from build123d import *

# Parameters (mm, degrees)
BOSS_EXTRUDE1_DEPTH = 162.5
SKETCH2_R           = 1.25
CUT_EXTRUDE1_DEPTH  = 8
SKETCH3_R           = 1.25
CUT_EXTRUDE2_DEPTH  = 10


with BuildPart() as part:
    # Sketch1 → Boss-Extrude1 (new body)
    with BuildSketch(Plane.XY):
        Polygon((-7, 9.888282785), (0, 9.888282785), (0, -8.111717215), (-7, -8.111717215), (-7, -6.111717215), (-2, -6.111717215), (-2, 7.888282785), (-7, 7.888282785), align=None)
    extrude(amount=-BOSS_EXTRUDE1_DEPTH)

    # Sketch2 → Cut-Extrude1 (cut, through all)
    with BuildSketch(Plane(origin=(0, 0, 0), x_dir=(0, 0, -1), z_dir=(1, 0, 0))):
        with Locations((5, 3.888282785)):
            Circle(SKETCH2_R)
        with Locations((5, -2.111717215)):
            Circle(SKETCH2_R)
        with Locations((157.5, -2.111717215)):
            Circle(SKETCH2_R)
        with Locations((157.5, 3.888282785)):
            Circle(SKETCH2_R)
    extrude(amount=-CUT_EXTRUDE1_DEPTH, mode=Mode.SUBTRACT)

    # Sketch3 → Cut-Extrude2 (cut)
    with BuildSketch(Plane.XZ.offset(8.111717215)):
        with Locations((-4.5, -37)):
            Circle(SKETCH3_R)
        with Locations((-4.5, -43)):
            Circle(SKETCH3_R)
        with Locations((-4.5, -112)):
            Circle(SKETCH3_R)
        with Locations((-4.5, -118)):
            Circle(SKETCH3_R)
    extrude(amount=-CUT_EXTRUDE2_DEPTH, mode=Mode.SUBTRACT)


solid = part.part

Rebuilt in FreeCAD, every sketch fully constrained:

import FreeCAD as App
import Part
import Sketcher


def add_polygon(sketch, points):
    """Adds a closed chain of lines whose ends are joined by coincident constraints."""
    first, n = sketch.GeometryCount, len(points)
    for a, b in zip(points, points[1:] + points[:1]):
        sketch.addGeometry(Part.LineSegment(App.Vector(*a, 0), App.Vector(*b, 0)), False)
    for i in range(n):
        sketch.addConstraint(Sketcher.Constraint("Coincident", first + i, 2, first + (i + 1) % n, 1))

doc = App.newDocument("Part")
body = doc.addObject("PartDesign::Body", "Body")

# Sketch on XY plane
sketch1 = doc.addObject("Sketcher::SketchObject", "Sketch")
body.addObject(sketch1)
sketch1.AttachmentSupport = (doc.XY_Plane, [""])
sketch1.MapMode = "FlatFace"
add_polygon(sketch1, [(0, 9.888283), (-7, 9.888283), (-7, 7.888283), (-2, 7.888283), (-2, -6.111717), (-7, -6.111717), (-7, -8.111717), (0, -8.111717)])  # lines 0-7
sketch1.addConstraint(Sketcher.Constraint("Horizontal", 0))
sketch1.addConstraint(Sketcher.Constraint("Vertical", 1))
sketch1.addConstraint(Sketcher.Constraint("Horizontal", 2))
sketch1.addConstraint(Sketcher.Constraint("Vertical", 3))
sketch1.addConstraint(Sketcher.Constraint("Horizontal", 4))
sketch1.addConstraint(Sketcher.Constraint("Vertical", 5))
sketch1.addConstraint(Sketcher.Constraint("Horizontal", 6))
sketch1.addConstraint(Sketcher.Constraint("Vertical", 7))
sketch1.addConstraint(Sketcher.Constraint("PointOnObject", 6, 2, -2))
sketch1.addConstraint(Sketcher.Constraint("Vertical", 1, 2, 4, 2))
sketch1.addConstraint(Sketcher.Constraint("Equal", 1, 5))
sketch1.addConstraint(Sketcher.Constraint("DistanceX", 0, 2, 0, 1, 7.0))
sketch1.addConstraint(Sketcher.Constraint("DistanceX", 2, 1, 2, 2, 5.0))
sketch1.addConstraint(Sketcher.Constraint("DistanceY", 1, 2, 1, 1, 2.0))
sketch1.addConstraint(Sketcher.Constraint("DistanceY", 3, 2, 3, 1, 14.0))
sketch1.addConstraint(Sketcher.Constraint("DistanceY", -1, 1, 0, 2, 9.888283))
pad1 = doc.addObject("PartDesign::Pad", "Pad")
body.addObject(pad1)
pad1.Profile = sketch1
pad1.Length = 162.5
pad1.Reversed = True

# Sketch on YZ plane
sketch2 = doc.addObject("Sketcher::SketchObject", "Sketch001")
body.addObject(sketch2)
sketch2.AttachmentSupport = (doc.YZ_Plane, [""])
sketch2.MapMode = "FlatFace"
sketch2.addGeometry(Part.Circle(App.Vector(3.888283, -5, 0), App.Vector(0, 0, 1), 1.25), False)
sketch2.addGeometry(Part.Circle(App.Vector(-2.111717, -5, 0), App.Vector(0, 0, 1), 1.25), False)
sketch2.addGeometry(Part.Circle(App.Vector(-2.111717, -157.5, 0), App.Vector(0, 0, 1), 1.25), False)
sketch2.addGeometry(Part.Circle(App.Vector(3.888283, -157.5, 0), App.Vector(0, 0, 1), 1.25), False)
sketch2.addConstraint(Sketcher.Constraint("Equal", 0, 1))
sketch2.addConstraint(Sketcher.Constraint("Equal", 1, 2))
sketch2.addConstraint(Sketcher.Constraint("Equal", 2, 3))
sketch2.addConstraint(Sketcher.Constraint("Horizontal", 0, 3, 1, 3))
sketch2.addConstraint(Sketcher.Constraint("Horizontal", 2, 3, 3, 3))
sketch2.addConstraint(Sketcher.Constraint("Vertical", 1, 3, 2, 3))
sketch2.addConstraint(Sketcher.Constraint("Vertical", 0, 3, 3, 3))
sketch2.addConstraint(Sketcher.Constraint("Diameter", 0, 2.5))
sketch2.addConstraint(Sketcher.Constraint("DistanceY", 0, 3, -1, 1, 5.0))
sketch2.addConstraint(Sketcher.Constraint("DistanceX", 1, 3, 0, 3, 6.0))
sketch2.addConstraint(Sketcher.Constraint("DistanceY", 2, 3, -1, 1, 157.5))
sketch2.addConstraint(Sketcher.Constraint("DistanceX", -1, 1, 0, 3, 3.888283))
pocket1 = doc.addObject("PartDesign::Pocket", "Pocket")
body.addObject(pocket1)
pocket1.Profile = sketch2
pocket1.Type = "ThroughAll"

# Sketch on XZ plane
sketch3 = doc.addObject("Sketcher::SketchObject", "Sketch002")
body.addObject(sketch3)
sketch3.AttachmentSupport = (doc.XZ_Plane, [""])
sketch3.MapMode = "FlatFace"
sketch3.AttachmentOffset = App.Placement(App.Vector(0, 0, 8.111717), App.Rotation())
sketch3.addGeometry(Part.Circle(App.Vector(-4.5, -37, 0), App.Vector(0, 0, 1), 1.25), False)
sketch3.addGeometry(Part.Circle(App.Vector(-4.5, -43, 0), App.Vector(0, 0, 1), 1.25), False)
sketch3.addGeometry(Part.Circle(App.Vector(-4.5, -112, 0), App.Vector(0, 0, 1), 1.25), False)
sketch3.addGeometry(Part.Circle(App.Vector(-4.5, -118, 0), App.Vector(0, 0, 1), 1.25), False)
sketch3.addConstraint(Sketcher.Constraint("Equal", 0, 1))
sketch3.addConstraint(Sketcher.Constraint("Equal", 1, 2))
sketch3.addConstraint(Sketcher.Constraint("Equal", 2, 3))
sketch3.addConstraint(Sketcher.Constraint("Vertical", 0, 3, 1, 3))
sketch3.addConstraint(Sketcher.Constraint("Vertical", 1, 3, 2, 3))
sketch3.addConstraint(Sketcher.Constraint("Vertical", 2, 3, 3, 3))
sketch3.addConstraint(Sketcher.Constraint("Diameter", 0, 2.5))
sketch3.addConstraint(Sketcher.Constraint("DistanceY", 0, 3, -1, 1, 37.0))
sketch3.addConstraint(Sketcher.Constraint("DistanceY", 1, 3, -1, 1, 43.0))
sketch3.addConstraint(Sketcher.Constraint("DistanceY", 2, 3, -1, 1, 112.0))
sketch3.addConstraint(Sketcher.Constraint("DistanceY", 3, 3, -1, 1, 118.0))
sketch3.addConstraint(Sketcher.Constraint("DistanceX", 0, 3, -1, 1, 4.5))
pocket2 = doc.addObject("PartDesign::Pocket", "Pocket001")
body.addObject(pocket2)
pocket2.Profile = sketch3
pocket2.Length = 10

doc.recompute()
